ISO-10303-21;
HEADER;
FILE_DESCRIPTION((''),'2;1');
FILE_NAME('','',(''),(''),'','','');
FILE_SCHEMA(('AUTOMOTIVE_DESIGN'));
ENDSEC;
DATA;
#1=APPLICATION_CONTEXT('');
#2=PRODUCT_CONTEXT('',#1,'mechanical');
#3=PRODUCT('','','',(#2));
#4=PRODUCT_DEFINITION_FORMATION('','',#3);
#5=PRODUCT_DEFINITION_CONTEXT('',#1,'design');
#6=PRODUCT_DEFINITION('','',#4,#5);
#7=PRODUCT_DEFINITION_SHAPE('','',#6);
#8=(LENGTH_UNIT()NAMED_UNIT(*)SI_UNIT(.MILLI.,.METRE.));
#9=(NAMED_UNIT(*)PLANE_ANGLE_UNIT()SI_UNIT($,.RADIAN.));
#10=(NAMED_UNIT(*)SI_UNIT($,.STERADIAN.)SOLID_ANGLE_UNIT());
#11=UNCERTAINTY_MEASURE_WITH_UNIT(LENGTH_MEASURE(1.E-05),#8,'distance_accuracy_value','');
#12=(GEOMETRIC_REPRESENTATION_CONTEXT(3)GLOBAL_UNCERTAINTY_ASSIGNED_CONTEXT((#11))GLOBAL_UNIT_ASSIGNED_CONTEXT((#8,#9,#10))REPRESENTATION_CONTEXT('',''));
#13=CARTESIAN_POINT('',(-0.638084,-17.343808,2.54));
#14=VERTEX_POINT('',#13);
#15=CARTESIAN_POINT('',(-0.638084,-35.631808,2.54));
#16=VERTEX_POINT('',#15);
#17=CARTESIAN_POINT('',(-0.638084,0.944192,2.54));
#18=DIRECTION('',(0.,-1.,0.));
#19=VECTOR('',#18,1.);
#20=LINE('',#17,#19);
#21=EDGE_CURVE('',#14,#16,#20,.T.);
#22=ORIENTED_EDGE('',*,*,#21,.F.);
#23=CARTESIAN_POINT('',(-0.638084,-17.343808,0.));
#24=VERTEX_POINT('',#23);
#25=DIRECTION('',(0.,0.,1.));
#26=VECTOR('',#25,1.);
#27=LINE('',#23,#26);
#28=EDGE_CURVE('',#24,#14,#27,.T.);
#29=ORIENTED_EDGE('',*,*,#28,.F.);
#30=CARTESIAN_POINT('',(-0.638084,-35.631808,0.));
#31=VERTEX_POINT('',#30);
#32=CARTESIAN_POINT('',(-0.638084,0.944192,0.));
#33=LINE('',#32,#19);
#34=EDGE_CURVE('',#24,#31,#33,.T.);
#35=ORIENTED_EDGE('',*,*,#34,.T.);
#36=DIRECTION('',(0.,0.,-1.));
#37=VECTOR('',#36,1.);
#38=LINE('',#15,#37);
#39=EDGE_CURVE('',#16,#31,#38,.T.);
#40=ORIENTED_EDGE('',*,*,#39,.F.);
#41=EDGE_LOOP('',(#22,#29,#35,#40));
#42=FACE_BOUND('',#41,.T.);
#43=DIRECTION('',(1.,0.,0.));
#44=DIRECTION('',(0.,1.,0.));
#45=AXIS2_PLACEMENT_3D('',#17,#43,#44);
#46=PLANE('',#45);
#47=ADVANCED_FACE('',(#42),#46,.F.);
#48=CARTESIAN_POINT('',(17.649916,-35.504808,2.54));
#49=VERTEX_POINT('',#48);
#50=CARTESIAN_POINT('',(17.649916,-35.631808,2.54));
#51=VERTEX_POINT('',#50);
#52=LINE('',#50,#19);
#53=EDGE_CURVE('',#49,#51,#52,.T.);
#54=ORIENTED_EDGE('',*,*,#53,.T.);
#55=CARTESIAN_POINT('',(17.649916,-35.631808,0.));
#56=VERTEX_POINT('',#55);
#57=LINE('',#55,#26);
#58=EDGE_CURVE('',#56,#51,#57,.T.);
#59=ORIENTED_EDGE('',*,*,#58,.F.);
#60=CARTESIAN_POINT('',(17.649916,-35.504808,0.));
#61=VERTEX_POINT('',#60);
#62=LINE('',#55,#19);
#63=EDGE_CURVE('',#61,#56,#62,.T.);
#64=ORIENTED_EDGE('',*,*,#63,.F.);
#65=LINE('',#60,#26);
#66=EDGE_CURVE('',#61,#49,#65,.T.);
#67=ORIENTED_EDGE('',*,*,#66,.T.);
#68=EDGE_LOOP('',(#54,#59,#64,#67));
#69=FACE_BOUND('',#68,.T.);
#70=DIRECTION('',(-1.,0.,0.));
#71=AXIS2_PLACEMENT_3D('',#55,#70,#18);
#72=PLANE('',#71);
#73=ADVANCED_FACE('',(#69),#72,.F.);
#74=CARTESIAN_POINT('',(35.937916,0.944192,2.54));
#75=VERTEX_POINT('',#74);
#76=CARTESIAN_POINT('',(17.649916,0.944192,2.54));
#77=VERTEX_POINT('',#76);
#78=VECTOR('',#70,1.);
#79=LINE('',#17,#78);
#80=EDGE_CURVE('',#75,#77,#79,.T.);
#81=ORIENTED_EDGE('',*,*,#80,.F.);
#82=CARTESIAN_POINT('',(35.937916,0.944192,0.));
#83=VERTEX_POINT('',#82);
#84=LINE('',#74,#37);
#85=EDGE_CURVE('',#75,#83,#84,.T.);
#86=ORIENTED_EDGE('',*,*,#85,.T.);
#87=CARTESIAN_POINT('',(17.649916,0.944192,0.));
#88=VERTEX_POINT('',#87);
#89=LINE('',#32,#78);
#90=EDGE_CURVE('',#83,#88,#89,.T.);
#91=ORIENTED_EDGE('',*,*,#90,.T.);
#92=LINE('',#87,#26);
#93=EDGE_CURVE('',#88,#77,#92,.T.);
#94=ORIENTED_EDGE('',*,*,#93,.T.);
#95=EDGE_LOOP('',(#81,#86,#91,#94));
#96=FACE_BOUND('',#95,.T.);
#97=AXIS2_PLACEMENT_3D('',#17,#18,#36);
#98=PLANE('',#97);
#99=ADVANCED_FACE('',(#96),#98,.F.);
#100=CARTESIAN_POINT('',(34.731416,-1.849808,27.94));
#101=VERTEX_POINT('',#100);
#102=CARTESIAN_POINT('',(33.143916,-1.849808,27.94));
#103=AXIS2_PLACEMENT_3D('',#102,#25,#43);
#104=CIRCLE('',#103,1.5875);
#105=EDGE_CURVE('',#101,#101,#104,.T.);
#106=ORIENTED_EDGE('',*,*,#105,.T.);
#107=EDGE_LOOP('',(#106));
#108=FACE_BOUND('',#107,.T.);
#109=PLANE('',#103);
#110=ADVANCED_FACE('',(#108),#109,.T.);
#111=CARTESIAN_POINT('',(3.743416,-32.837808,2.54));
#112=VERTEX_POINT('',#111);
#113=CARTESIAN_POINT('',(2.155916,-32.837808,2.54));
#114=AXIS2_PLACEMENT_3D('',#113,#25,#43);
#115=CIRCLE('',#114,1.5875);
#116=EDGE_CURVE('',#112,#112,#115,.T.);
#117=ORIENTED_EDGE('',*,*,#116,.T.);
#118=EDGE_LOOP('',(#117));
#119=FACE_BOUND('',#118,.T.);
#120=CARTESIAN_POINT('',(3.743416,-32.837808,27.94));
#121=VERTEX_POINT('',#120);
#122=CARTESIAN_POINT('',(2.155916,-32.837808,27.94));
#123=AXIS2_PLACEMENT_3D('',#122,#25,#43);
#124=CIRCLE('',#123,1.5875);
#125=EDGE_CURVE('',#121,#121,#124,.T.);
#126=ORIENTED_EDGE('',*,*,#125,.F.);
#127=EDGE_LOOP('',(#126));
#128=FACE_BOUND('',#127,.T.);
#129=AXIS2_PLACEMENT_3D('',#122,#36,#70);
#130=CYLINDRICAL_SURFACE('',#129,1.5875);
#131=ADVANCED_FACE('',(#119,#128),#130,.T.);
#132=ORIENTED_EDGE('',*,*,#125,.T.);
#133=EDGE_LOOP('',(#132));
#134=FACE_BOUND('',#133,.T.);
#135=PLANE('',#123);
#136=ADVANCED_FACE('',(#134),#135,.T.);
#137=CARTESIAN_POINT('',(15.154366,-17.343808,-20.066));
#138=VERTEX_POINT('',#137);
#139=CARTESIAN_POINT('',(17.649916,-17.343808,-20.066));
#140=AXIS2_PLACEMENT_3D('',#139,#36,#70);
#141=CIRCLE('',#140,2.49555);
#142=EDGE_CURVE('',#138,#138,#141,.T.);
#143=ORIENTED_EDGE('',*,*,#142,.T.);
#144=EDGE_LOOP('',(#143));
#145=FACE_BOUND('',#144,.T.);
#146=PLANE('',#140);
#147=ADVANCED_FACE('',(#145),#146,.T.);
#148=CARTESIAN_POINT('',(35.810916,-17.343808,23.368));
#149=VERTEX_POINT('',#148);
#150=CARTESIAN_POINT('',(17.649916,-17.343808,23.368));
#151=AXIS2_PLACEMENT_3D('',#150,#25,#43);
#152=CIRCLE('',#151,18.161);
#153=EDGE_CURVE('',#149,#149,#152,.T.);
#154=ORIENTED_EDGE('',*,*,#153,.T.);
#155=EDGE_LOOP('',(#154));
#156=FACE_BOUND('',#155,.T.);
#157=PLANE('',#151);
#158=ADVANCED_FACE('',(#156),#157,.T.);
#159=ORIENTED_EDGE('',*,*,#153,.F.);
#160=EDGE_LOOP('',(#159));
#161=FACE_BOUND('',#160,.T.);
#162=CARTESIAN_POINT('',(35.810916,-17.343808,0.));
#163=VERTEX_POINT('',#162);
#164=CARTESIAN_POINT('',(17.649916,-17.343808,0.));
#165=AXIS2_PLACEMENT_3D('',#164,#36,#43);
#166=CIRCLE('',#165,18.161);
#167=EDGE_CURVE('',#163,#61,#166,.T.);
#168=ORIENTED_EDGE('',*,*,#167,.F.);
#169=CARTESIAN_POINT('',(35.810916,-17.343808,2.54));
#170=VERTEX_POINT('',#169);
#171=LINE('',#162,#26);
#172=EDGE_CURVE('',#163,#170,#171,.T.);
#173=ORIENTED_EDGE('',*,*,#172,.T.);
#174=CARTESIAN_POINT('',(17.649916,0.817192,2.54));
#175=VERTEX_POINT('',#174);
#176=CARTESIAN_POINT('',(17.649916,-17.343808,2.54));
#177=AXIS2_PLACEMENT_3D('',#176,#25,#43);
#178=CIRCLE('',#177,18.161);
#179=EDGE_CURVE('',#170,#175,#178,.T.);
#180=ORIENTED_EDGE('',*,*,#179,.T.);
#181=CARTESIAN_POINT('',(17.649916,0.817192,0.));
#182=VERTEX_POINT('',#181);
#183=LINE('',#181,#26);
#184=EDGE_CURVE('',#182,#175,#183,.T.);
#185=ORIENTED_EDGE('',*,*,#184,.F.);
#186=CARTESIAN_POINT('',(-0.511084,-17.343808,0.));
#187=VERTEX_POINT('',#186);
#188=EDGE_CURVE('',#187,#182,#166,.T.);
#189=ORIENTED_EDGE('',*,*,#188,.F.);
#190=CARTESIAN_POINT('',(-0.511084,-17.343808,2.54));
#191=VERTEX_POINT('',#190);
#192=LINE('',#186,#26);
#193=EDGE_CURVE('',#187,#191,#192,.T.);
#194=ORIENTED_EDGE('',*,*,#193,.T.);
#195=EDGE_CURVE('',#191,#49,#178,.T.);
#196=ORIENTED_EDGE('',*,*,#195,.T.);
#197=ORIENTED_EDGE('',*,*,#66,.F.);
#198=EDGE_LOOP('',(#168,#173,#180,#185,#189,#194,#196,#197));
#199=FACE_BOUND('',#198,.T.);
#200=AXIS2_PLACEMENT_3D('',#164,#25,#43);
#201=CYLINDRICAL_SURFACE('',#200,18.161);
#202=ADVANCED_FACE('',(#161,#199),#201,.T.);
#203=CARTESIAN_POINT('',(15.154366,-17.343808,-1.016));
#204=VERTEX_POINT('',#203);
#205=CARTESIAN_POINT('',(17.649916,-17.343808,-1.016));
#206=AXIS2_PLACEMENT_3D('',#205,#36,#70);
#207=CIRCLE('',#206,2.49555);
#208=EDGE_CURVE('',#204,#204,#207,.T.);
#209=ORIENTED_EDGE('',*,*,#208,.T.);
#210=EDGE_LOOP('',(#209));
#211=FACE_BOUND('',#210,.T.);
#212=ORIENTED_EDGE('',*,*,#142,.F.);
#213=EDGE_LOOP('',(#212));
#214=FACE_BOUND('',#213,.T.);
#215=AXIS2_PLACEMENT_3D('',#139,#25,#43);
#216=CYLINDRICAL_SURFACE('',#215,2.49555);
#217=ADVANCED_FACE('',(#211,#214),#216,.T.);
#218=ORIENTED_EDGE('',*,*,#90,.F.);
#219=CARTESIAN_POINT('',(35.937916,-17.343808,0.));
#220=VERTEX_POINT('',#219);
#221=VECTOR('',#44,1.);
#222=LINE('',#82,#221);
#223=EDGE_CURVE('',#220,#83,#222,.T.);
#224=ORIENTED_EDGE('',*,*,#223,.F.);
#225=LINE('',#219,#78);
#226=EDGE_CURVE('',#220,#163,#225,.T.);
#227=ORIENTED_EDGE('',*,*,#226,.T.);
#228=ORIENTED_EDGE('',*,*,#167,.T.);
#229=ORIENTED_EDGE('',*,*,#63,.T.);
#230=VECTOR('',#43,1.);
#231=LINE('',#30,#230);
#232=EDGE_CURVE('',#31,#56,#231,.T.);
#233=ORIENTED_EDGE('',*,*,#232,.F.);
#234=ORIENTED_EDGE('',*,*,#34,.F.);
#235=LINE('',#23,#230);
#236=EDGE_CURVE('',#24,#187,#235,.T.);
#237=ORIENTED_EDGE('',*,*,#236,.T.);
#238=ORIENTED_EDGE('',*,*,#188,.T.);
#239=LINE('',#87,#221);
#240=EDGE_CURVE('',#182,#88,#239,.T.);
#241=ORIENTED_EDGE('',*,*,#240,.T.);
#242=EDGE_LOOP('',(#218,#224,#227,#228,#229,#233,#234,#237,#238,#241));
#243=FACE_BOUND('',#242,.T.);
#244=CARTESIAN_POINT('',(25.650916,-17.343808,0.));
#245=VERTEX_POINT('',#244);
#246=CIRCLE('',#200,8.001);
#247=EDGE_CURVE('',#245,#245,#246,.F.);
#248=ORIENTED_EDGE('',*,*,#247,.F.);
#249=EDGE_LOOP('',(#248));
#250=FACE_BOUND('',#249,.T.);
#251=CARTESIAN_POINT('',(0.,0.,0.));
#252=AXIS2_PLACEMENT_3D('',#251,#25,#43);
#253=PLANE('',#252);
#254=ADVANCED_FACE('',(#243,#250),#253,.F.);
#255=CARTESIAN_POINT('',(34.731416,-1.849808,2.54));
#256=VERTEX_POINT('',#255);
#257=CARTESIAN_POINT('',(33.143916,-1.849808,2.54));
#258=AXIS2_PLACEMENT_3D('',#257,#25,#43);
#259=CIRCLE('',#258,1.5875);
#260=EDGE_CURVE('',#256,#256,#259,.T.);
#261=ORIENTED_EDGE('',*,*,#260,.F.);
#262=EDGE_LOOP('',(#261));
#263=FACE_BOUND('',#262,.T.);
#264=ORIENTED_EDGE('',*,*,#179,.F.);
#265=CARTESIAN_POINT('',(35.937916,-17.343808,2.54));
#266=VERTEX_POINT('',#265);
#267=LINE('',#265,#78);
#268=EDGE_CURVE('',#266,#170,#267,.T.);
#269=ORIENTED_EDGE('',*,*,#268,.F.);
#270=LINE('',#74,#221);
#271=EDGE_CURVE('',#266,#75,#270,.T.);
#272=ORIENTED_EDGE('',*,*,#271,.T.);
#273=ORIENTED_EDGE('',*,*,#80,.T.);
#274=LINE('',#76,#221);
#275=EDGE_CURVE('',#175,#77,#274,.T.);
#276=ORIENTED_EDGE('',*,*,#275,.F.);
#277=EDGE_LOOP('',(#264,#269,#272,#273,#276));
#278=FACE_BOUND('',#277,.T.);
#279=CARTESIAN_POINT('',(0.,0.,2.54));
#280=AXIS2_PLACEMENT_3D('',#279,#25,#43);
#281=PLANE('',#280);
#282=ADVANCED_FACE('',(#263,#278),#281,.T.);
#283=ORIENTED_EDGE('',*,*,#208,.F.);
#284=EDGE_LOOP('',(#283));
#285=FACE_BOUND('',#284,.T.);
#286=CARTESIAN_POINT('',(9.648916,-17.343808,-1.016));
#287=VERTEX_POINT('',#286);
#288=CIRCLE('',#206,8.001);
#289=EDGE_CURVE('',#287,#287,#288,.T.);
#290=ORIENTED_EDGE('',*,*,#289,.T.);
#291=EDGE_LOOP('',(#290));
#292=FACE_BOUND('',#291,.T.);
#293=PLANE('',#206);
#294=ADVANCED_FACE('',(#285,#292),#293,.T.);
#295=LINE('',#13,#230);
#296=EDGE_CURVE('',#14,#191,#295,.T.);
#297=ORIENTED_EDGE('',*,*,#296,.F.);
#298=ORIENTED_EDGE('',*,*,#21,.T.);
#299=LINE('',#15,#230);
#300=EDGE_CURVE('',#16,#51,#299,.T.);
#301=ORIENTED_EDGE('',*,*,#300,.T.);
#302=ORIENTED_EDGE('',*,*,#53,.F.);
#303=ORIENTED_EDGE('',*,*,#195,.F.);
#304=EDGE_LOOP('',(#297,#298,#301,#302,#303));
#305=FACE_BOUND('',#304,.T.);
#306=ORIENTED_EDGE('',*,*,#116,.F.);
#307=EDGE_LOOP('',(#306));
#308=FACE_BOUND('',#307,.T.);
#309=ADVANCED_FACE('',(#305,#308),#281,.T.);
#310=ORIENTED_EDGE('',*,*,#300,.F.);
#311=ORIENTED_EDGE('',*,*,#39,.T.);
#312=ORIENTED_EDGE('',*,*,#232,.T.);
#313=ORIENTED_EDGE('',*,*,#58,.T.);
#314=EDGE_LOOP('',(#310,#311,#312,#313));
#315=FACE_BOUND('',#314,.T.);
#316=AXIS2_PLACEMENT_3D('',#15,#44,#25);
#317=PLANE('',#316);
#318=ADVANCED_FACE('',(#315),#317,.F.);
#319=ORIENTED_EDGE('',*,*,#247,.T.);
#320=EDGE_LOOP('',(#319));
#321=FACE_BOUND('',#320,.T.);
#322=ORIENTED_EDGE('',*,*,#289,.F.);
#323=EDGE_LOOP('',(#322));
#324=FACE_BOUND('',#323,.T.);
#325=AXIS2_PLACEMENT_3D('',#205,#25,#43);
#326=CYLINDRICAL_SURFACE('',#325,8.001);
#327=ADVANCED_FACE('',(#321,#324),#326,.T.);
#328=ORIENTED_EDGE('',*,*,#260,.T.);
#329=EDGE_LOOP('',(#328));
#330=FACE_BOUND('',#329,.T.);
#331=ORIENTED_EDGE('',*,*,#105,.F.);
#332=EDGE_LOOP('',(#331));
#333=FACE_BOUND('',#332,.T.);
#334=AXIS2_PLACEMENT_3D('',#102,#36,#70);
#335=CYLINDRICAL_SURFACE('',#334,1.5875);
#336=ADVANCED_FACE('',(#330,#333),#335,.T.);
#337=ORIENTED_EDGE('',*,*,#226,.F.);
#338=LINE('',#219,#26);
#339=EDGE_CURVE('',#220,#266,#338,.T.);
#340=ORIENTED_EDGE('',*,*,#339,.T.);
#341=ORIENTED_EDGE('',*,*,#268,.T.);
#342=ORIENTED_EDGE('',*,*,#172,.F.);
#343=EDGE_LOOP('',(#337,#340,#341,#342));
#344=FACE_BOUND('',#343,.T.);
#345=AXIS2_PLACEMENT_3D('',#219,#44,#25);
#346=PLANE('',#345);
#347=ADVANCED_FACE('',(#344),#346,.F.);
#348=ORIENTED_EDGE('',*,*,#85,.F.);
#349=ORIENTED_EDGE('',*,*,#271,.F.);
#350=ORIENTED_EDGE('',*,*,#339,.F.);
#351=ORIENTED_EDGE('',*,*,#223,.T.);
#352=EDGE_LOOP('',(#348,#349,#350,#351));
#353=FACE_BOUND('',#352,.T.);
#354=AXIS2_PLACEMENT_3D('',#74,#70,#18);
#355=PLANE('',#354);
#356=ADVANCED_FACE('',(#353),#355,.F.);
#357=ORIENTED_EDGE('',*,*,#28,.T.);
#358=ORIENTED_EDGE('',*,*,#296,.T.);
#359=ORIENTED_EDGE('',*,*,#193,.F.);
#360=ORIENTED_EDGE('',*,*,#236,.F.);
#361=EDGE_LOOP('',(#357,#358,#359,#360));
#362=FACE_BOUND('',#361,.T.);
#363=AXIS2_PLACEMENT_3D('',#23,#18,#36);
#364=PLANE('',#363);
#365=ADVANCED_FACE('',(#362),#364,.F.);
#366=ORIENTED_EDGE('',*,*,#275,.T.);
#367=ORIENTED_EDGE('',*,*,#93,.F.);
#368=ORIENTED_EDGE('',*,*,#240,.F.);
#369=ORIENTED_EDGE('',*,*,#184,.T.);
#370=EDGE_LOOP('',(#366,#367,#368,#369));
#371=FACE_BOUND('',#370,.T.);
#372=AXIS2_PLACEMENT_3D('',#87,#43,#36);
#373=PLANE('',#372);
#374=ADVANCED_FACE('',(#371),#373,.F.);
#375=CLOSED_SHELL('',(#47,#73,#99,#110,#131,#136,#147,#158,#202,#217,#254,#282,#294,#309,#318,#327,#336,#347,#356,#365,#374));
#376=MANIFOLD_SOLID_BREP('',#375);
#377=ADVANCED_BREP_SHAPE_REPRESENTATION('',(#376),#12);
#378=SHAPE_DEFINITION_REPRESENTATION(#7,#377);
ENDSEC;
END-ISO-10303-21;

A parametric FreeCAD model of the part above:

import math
import FreeCAD as App
import Part
import Sketcher

V = App.Vector
Q = App.Units.Quantity


def add_polygon(sketch, points):
    """Adds a closed chain of lines whose ends are joined by coincident constraints."""
    first, n = sketch.GeometryCount, len(points)
    for a, b in zip(points, points[1:] + points[:1]):
        sketch.addGeometry(Part.LineSegment(App.Vector(*a, 0), App.Vector(*b, 0)), False)
    for i in range(n):
        sketch.addConstraint(Sketcher.Constraint("Coincident", first + i, 2, first + (i + 1) % n, 1))

doc = App.newDocument("Part")
body = doc.addObject("PartDesign::Body", "Body")

# Sketch on XY plane
sketch1 = doc.addObject("Sketcher::SketchObject", "Sketch")
body.addObject(sketch1)
sketch1.AttachmentSupport = (doc.XY_Plane, [""])
sketch1.MapMode = "FlatFace"
add_polygon(sketch1, [(-0.638084, 0.944192), (-0.638084, -35.631808), (35.937916, -35.631808), (35.937916, 0.944192)])  # lines 0-3
sketch1.addConstraint(Sketcher.Constraint("Vertical", 0))
sketch1.addConstraint(Sketcher.Constraint("Horizontal", 1))
sketch1.addConstraint(Sketcher.Constraint("Vertical", 2))
sketch1.addConstraint(Sketcher.Constraint("Horizontal", 3))
sketch1.addConstraint(Sketcher.Constraint("Equal", 3, 0))
sketch1.addConstraint(Sketcher.Constraint("DistanceX", 1, 1, 1, 2, Q("1.44 in")))
sketch1.addConstraint(Sketcher.Constraint("DistanceY", 0, 2, -1, 1, 35.631808))
sketch1.addConstraint(Sketcher.Constraint("DistanceX", 0, 2, -1, 1, 0.638084))
pad1 = doc.addObject("PartDesign::Pad", "Pad")
body.addObject(pad1)
pad1.Profile = sketch1
pad1.Length = Q("0.1 in")

# Sketch on XY plane
sketch2 = doc.addObject("Sketcher::SketchObject", "Sketch001")
body.addObject(sketch2)
sketch2.AttachmentSupport = (doc.XY_Plane, [""])
sketch2.MapMode = "FlatFace"
sketch2.AttachmentOffset = App.Placement(V(0, 0, 0.1 * 25.4), App.Rotation())
sketch2.addGeometry(Part.Circle(V(33.143916, -1.849808, 0), V(0, 0, 1), 1.5875), False)
sketch2.addGeometry(Part.Circle(V(2.155916, -32.837808, 0), V(0, 0, 1), 1.5875), False)
sketch2.addConstraint(Sketcher.Constraint("Equal", 0, 1))
sketch2.addConstraint(Sketcher.Constraint("Diameter", 0, Q("0.125 in")))
sketch2.addConstraint(Sketcher.Constraint("DistanceX", 1, 3, 0, 3, Q("1.22 in")))
sketch2.addConstraint(Sketcher.Constraint("DistanceY", 1, 3, 0, 3, Q("1.22 in")))
sketch2.addConstraint(Sketcher.Constraint("DistanceY", 0, 3, -1, 1, 1.849808))
sketch2.addConstraint(Sketcher.Constraint("DistanceX", -1, 1, 0, 3, 33.143916))
pad2 = doc.addObject("PartDesign::Pad", "Pad001")
body.addObject(pad2)
pad2.Profile = sketch2
pad2.Length = Q("1 in")

# Sketch on XY plane
sketch3 = doc.addObject("Sketcher::SketchObject", "Sketch002")
body.addObject(sketch3)
sketch3.AttachmentSupport = (doc.XY_Plane, [""])
sketch3.MapMode = "FlatFace"
sketch3.AttachmentOffset = App.Placement(V(0, 0, 0.1 * 25.4), App.Rotation())
sketch3.addGeometry(Part.LineSegment(V(-0.638084, 0.944192, 0), V(-0.638084, -17.343808, 0)), False)
sketch3.addGeometry(Part.LineSegment(V(-0.638084, -17.343808, 0), V(-0.511084, -17.343808, 0)), False)
sketch3.addGeometry(Part.ArcOfCircle(Part.Circle(V(17.649916, -17.343808, 0), V(0, 0, 1), 18.161), math.radians(90), math.radians(180)), False)
sketch3.addGeometry(Part.LineSegment(V(17.649916, 0.817192, 0), V(17.649916, 0.944192, 0)), False)
sketch3.addGeometry(Part.LineSegment(V(17.649916, 0.944192, 0), V(-0.638084, 0.944192, 0)), False)
sketch3.addGeometry(Part.LineSegment(V(17.649916, -35.631808, 0), V(35.937916, -35.631808, 0)), False)
sketch3.addGeometry(Part.LineSegment(V(35.937916, -35.631808, 0), V(35.937916, -17.343808, 0)), False)
sketch3.addGeometry(Part.LineSegment(V(35.937916, -17.343808, 0), V(35.810916, -17.343808, 0)), False)
sketch3.addGeometry(Part.ArcOfCircle(Part.Circle(V(17.649916, -17.343808, 0), V(0, 0, 1), 18.161), math.radians(-90), math.radians(0)), False)
sketch3.addGeometry(Part.LineSegment(V(17.649916, -35.504808, 0), V(17.649916, -35.631808, 0)), False)
sketch3.addConstraint(Sketcher.Constraint("Coincident", 0, 2, 1, 1))
sketch3.addConstraint(Sketcher.Constraint("Coincident", 1, 2, 2, 2))
sketch3.addConstraint(Sketcher.Constraint("Coincident", 2, 1, 3, 1))
sketch3.addConstraint(Sketcher.Constraint("Coincident", 3, 2, 4, 1))
sketch3.addConstraint(Sketcher.Constraint("Coincident", 4, 2, 0, 1))
sketch3.addConstraint(Sketcher.Constraint("Coincident", 5, 2, 6, 1))
sketch3.addConstraint(Sketcher.Constraint("Coincident", 6, 2, 7, 1))
sketch3.addConstraint(Sketcher.Constraint("Coincident", 7, 2, 8, 2))
sketch3.addConstraint(Sketcher.Constraint("Coincident", 8, 1, 9, 1))
sketch3.addConstraint(Sketcher.Constraint("Coincident", 9, 2, 5, 1))
sketch3.addConstraint(Sketcher.Constraint("Vertical", 0))
sketch3.addConstraint(Sketcher.Constraint("Horizontal", 1))
sketch3.addConstraint(Sketcher.Constraint("Vertical", 3))
sketch3.addConstraint(Sketcher.Constraint("Horizontal", 4))
sketch3.addConstraint(Sketcher.Constraint("Horizontal", 5))
sketch3.addConstraint(Sketcher.Constraint("Vertical", 6))
sketch3.addConstraint(Sketcher.Constraint("Horizontal", 7))
sketch3.addConstraint(Sketcher.Constraint("Vertical", 9))
sketch3.addConstraint(Sketcher.Constraint("Coincident", 8, 3, 2, 3))
sketch3.addConstraint(Sketcher.Constraint("Equal", 2, 8))
sketch3.addConstraint(Sketcher.Constraint("Horizontal", 8, 3, 0, 2))
sketch3.addConstraint(Sketcher.Constraint("Horizontal", 1, 2, 6, 2))
sketch3.addConstraint(Sketcher.Constraint("Vertical", 8, 3, 2, 1))
sketch3.addConstraint(Sketcher.Constraint("Vertical", 3, 2, 8, 1))
sketch3.addConstraint(Sketcher.Constraint("Equal", 4, 5))
sketch3.addConstraint(Sketcher.Constraint("Equal", 5, 0))
sketch3.addConstraint(Sketcher.Constraint("Equal", 0, 6))
sketch3.addConstraint(Sketcher.Constraint("Radius", 2, Q("0.715 in")))
sketch3.addConstraint(Sketcher.Constraint("DistanceX", 4, 2, 4, 1, Q("0.72 in")))
sketch3.addConstraint(Sketcher.Constraint("DistanceY", 2, 3, -1, 1, 17.343808))
sketch3.addConstraint(Sketcher.Constraint("DistanceX", -1, 1, 2, 3, 17.649916))
pocket1 = doc.addObject("PartDesign::Pocket", "Pocket")
body.addObject(pocket1)
pocket1.Profile = sketch3
pocket1.Type = "ThroughAll"

# Sketch on XY plane
sketch4 = doc.addObject("Sketcher::SketchObject", "Sketch003")
body.addObject(sketch4)
sketch4.AttachmentSupport = (doc.XY_Plane, [""])
sketch4.MapMode = "FlatFace"
sketch4.addGeometry(Part.Circle(V(17.649916, -17.343808, 0), V(0, 0, 1), 8.001), False)
sketch4.addConstraint(Sketcher.Constraint("Diameter", 0, Q("0.63 in")))
sketch4.addConstraint(Sketcher.Constraint("DistanceY", 0, 3, -1, 1, 17.343808))
sketch4.addConstraint(Sketcher.Constraint("DistanceX", -1, 1, 0, 3, 17.649916))
pad3 = doc.addObject("PartDesign::Pad", "Pad002")
body.addObject(pad3)
pad3.Profile = sketch4
pad3.Length = Q("0.04 in")
pad3.Reversed = True

# Sketch on XY plane
sketch5 = doc.addObject("Sketcher::SketchObject", "Sketch004")
body.addObject(sketch5)
sketch5.AttachmentSupport = (doc.XY_Plane, [""])
sketch5.MapMode = "FlatFace"
sketch5.AttachmentOffset = App.Placement(V(0, 0, -0.04 * 25.4), App.Rotation())
sketch5.addGeometry(Part.Circle(V(17.649916, -17.343808, 0), V(0, 0, 1), 2.49555), False)
sketch5.addConstraint(Sketcher.Constraint("Diameter", 0, Q("0.1965 in")))
sketch5.addConstraint(Sketcher.Constraint("DistanceY", 0, 3, -1, 1, 17.343808))
sketch5.addConstraint(Sketcher.Constraint("DistanceX", -1, 1, 0, 3, 17.649916))
pad4 = doc.addObject("PartDesign::Pad", "Pad003")
body.addObject(pad4)
pad4.Profile = sketch5
pad4.Length = Q("0.75 in")
pad4.Reversed = True

# Sketch on XY plane
sketch6 = doc.addObject("Sketcher::SketchObject", "Sketch005")
body.addObject(sketch6)
sketch6.AttachmentSupport = (doc.XY_Plane, [""])
sketch6.MapMode = "FlatFace"
sketch6.AttachmentOffset = App.Placement(V(0, 0, 0.1 * 25.4), App.Rotation())
sketch6.addGeometry(Part.Circle(V(17.649916, -17.343808, 0), V(0, 0, 1), 18.161), False)
sketch6.addConstraint(Sketcher.Constraint("Diameter", 0, Q("1.43 in")))
sketch6.addConstraint(Sketcher.Constraint("DistanceY", 0, 3, -1, 1, 17.343808))
sketch6.addConstraint(Sketcher.Constraint("DistanceX", -1, 1, 0, 3, 17.649916))
pad5 = doc.addObject("PartDesign::Pad", "Pad004")
body.addObject(pad5)
pad5.Profile = sketch6
pad5.Length = Q("0.82 in")

doc.recompute()
